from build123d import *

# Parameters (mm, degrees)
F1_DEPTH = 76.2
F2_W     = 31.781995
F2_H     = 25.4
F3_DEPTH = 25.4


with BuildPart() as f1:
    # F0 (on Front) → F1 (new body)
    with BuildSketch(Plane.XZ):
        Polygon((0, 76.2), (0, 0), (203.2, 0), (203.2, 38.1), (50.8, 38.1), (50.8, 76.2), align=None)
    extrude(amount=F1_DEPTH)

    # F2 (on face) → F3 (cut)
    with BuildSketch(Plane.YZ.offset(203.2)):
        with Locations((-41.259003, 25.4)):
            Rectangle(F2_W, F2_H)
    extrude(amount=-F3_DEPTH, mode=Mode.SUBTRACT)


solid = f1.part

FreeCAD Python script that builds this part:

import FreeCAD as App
import Part
import Sketcher

V = App.Vector
Q = App.Units.Quantity

doc = App.newDocument("Part")
body = doc.addObject("PartDesign::Body", "Body")

# Sketch on XZ plane
sketch1 = doc.addObject("Sketcher::SketchObject", "Sketch")
body.addObject(sketch1)
sketch1.AttachmentSupport = (doc.XZ_Plane, [""])
sketch1.MapMode = "FlatFace"
sketch1.addGeometry(Part.LineSegment(V(0, 76, 0), V(0, 0, 0)), False)
sketch1.addGeometry(Part.LineSegment(V(0, 0, 0), V(203, 0, 0)), False)
sketch1.addGeometry(Part.LineSegment(V(203, 0, 0), V(203, 38, 0)), False)
sketch1.addGeometry(Part.LineSegment(V(203, 38, 0), V(51, 38, 0)), False)
sketch1.addGeometry(Part.LineSegment(V(51, 38, 0), V(51, 76, 0)), False)
sketch1.addGeometry(Part.LineSegment(V(51, 76, 0), V(0, 76, 0)), False)
sketch1.addConstraint(Sketcher.Constraint("Coincident", 0, 2, 1, 1))
sketch1.addConstraint(Sketcher.Constraint("Coincident", 1, 2, 2, 1))
sketch1.addConstraint(Sketcher.Constraint("Coincident", 2, 2, 3, 1))
sketch1.addConstraint(Sketcher.Constraint("Coincident", 3, 2, 4, 1))
sketch1.addConstraint(Sketcher.Constraint("Coincident", 4, 2, 5, 1))
sketch1.addConstraint(Sketcher.Constraint("Coincident", 5, 2, 0, 1))
sketch1.addConstraint(Sketcher.Constraint("Vertical", 0))
sketch1.addConstraint(Sketcher.Constraint("Horizontal", 1))
sketch1.addConstraint(Sketcher.Constraint("Vertical", 2))
sketch1.addConstraint(Sketcher.Constraint("Horizontal", 3))
sketch1.addConstraint(Sketcher.Constraint("Vertical", 4))
sketch1.addConstraint(Sketcher.Constraint("Horizontal", 5))
sketch1.addConstraint(Sketcher.Constraint("Coincident", 0, 2, -1, 1))
sketch1.addConstraint(Sketcher.Constraint("Equal", 2, 4))
sketch1.addConstraint(Sketcher.Constraint("DistanceX", 1, 1, 1, 2, Q("8 in")))
sketch1.addConstraint(Sketcher.Constraint("DistanceX", 3, 2, 3, 1, Q("6 in")))
sketch1.addConstraint(Sketcher.Constraint("DistanceY", 0, 2, 0, 1, Q("3 in")))
pad1 = doc.addObject("PartDesign::Pad", "Pad")
body.addObject(pad1)
pad1.Profile = sketch1
pad1.Length = Q("3 in")

# Sketch on YZ plane
sketch2 = doc.addObject("Sketcher::SketchObject", "Sketch001")
body.addObject(sketch2)
sketch2.AttachmentSupport = (doc.YZ_Plane, [""])
sketch2.MapMode = "FlatFace"
sketch2.AttachmentOffset = App.Placement(V(0, 0, 8 * 25.4), App.Rotation())
sketch2.addGeometry(Part.LineSegment(V(-57, 38, 0), V(-57, 13, 0)), False)
sketch2.addGeometry(Part.LineSegment(V(-57, 13, 0), V(-25, 13, 0)), False)
sketch2.addGeometry(Part.LineSegment(V(-25, 13, 0), V(-25, 38, 0)), False)
sketch2.addGeometry(Part.LineSegment(V(-25, 38, 0), V(-57, 38, 0)), False)
sketch2.addConstraint(Sketcher.Constraint("Coincident", 0, 2, 1, 1))
sketch2.addConstraint(Sketcher.Constraint("Coincident", 1, 2, 2, 1))
sketch2.addConstraint(Sketcher.Constraint("Coincident", 2, 2, 3, 1))
sketch2.addConstraint(Sketcher.Constraint("Coincident", 3, 2, 0, 1))
sketch2.addConstraint(Sketcher.Constraint("Vertical", 0))
sketch2.addConstraint(Sketcher.Constraint("Horizontal", 1))
sketch2.addConstraint(Sketcher.Constraint("Vertical", 2))
sketch2.addConstraint(Sketcher.Constraint("Horizontal", 3))
sketch2.addConstraint(Sketcher.Constraint("DistanceY", 0, 2, 0, 1, Q("1 in")))
sketch2.addConstraint(Sketcher.Constraint("DistanceY", -1, 1, 0, 2, Q("0.5 in")))
sketch2.addConstraint(Sketcher.Constraint("DistanceX", 0, 2, -1, 1, Q("2.25 in")))
sketch2.addConstraint(Sketcher.Constraint("DistanceX", 1, 1, 1, 2, Q("31.781995 mm")))
pocket1 = doc.addObject("PartDesign::Pocket", "Pocket")
body.addObject(pocket1)
pocket1.Profile = sketch2
pocket1.Length = Q("1 in")

doc.recompute()
